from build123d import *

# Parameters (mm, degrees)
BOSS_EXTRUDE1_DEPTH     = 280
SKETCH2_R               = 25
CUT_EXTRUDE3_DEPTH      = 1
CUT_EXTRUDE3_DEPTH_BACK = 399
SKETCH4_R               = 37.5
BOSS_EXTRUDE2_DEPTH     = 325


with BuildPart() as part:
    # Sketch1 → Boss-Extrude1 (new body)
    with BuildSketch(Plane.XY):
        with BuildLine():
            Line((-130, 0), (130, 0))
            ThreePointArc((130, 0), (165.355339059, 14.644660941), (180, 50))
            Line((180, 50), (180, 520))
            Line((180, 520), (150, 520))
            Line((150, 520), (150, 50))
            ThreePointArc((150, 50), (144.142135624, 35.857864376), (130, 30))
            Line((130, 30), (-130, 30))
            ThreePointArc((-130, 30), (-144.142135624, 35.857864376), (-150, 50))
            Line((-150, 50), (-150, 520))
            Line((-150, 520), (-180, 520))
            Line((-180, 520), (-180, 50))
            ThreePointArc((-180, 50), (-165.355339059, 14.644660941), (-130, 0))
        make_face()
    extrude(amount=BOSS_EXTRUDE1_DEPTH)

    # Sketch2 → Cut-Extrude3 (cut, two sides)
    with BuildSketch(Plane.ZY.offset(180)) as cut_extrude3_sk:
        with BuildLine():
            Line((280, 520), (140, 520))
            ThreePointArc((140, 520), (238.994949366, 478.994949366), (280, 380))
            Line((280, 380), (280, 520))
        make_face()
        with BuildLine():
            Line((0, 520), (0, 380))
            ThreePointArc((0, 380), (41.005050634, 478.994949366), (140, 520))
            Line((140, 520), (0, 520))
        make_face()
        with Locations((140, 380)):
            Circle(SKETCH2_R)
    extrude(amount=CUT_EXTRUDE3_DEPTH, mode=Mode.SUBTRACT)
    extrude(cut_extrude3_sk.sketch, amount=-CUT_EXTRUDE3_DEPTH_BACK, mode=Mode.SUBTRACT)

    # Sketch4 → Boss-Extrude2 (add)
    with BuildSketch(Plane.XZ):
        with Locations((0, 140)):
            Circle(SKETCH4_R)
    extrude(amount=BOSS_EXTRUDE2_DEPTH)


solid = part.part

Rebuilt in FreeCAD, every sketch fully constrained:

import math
import FreeCAD as App
import Part
import Sketcher

V = App.Vector
Q = App.Units.Quantity

doc = App.newDocument("Part")
params = doc.addObject("Spreadsheet::Sheet", "Params")
for row, (alias, value) in enumerate([
    ("sketch1_radius", "50 mm"),
    ("sketch1_radius2", "20 mm"),
    ("sketch1_width", "260 mm"),
    ("sketch1_height", "470 mm"),
    ("pad1_length", "280 mm"),
    ("sketch2_diameter", "50 mm"),
    ("sketch2_radius", "140 mm"),
    ("sketch3_diameter", "75 mm"),
    ("pad2_length", "325 mm"),
], start=1):
    params.set(f"A{row}", alias)
    params.set(f"B{row}", "=" + value)
    params.setAlias(f"B{row}", alias)

body = doc.addObject("PartDesign::Body", "Body")

# Sketch on XY plane
sketch1 = body.newObject("Sketcher::SketchObject", "Sketch")
sketch1.AttachmentSupport = (doc.getObject("XY_Plane"), [""])
sketch1.MapMode = "FlatFace"
sketch1.addGeometry([
    Part.LineSegment(V(-130, 0, 0), V(130, 0, 0)),  # 0
    Part.ArcOfCircle(Part.Circle(V(130, 50, 0), V(0, 0, 1), 50), math.radians(-90), math.radians(0)),  # 1
    Part.LineSegment(V(180, 50, 0), V(180, 520, 0)),  # 2
    Part.LineSegment(V(180, 520, 0), V(150, 520, 0)),  # 3
    Part.LineSegment(V(150, 520, 0), V(150, 50, 0)),  # 4
    Part.ArcOfCircle(Part.Circle(V(130, 50, 0), V(0, 0, 1), 20), math.radians(-90), math.radians(0)),  # 5
    Part.LineSegment(V(130, 30, 0), V(-130, 30, 0)),  # 6
    Part.ArcOfCircle(Part.Circle(V(-130, 50, 0), V(0, 0, 1), 20), math.radians(180), math.radians(270)),  # 7
    Part.LineSegment(V(-150, 50, 0), V(-150, 520, 0)),  # 8
    Part.LineSegment(V(-150, 520, 0), V(-180, 520, 0)),  # 9
    Part.LineSegment(V(-180, 520, 0), V(-180, 50, 0)),  # 10
    Part.ArcOfCircle(Part.Circle(V(-130, 50, 0), V(0, 0, 1), 50), math.radians(-180), math.radians(-90)),  # 11
], False)
sketch1.addConstraint([
    Sketcher.Constraint("Tangent", 0, 2, 1, 1),
    Sketcher.Constraint("Tangent", 1, 2, 2, 1),
    Sketcher.Constraint("Coincident", 2, 2, 3, 1),
    Sketcher.Constraint("Coincident", 3, 2, 4, 1),
    Sketcher.Constraint("Tangent", 4, 2, 5, 2),
    Sketcher.Constraint("Tangent", 5, 1, 6, 1),
    Sketcher.Constraint("Tangent", 6, 2, 7, 2),
    Sketcher.Constraint("Tangent", 7, 1, 8, 1),
    Sketcher.Constraint("Coincident", 8, 2, 9, 1),
    Sketcher.Constraint("Coincident", 9, 2, 10, 1),
    Sketcher.Constraint("Tangent", 10, 2, 11, 1),
    Sketcher.Constraint("Tangent", 11, 2, 0, 1),
    Sketcher.Constraint("Horizontal", 0),
    Sketcher.Constraint("Vertical", 2),
    Sketcher.Constraint("Horizontal", 3),
    Sketcher.Constraint("Vertical", 4),
    Sketcher.Constraint("Horizontal", 6),
    Sketcher.Constraint("Vertical", 8),
    Sketcher.Constraint("Horizontal", 9),
    Sketcher.Constraint("Vertical", 10),
    Sketcher.Constraint("Coincident", 5, 3, 1, 3),
    Sketcher.Constraint("Coincident", 11, 3, 7, 3),
    Sketcher.Constraint("Equal", 5, 7),
    Sketcher.Constraint("Symmetric", 0, 2, 11, 2, -1, 1),
    Sketcher.Constraint("Horizontal", 3, 2, 8, 2),
    Sketcher.Constraint("Radius", 1, Q("50 mm")),
    Sketcher.Constraint("Radius", 5, Q("20 mm")),
    Sketcher.Constraint("DistanceX", 0, 1, 0, 2, Q("260 mm")),
    Sketcher.Constraint("DistanceY", 2, 1, 2, 2, Q("470 mm")),
])
sketch1.setExpression("Constraints[25]", "Params.sketch1_radius")
sketch1.setExpression("Constraints[26]", "Params.sketch1_radius2")
sketch1.setExpression("Constraints[27]", "Params.sketch1_width")
sketch1.setExpression("Constraints[28]", "Params.sketch1_height")
pad1 = body.newObject("PartDesign::Pad", "Pad")
pad1.Profile = sketch1
pad1.setExpression("Length", "Params.pad1_length")

# Sketch on YZ plane
sketch2 = body.newObject("Sketcher::SketchObject", "Sketch001")
sketch2.AttachmentSupport = (doc.getObject("YZ_Plane"), [""])
sketch2.MapMode = "FlatFace"
sketch2.AttachmentOffset = App.Placement(V(0, 0, -180), App.Rotation())
sketch2.addGeometry([
    Part.LineSegment(V(520, 280, 0), V(520, 140, 0)),  # 0
    Part.ArcOfCircle(Part.Circle(V(380, 140, 0), V(0, 0, 1), 140), math.radians(0), math.radians(90)),  # 1
    Part.LineSegment(V(380, 280, 0), V(520, 280, 0)),  # 2
    Part.LineSegment(V(520, 0, 0), V(380, 0, 0)),  # 3
    Part.ArcOfCircle(Part.Circle(V(380, 140, 0), V(0, 0, 1), 140), math.radians(-90), math.radians(0)),  # 4
    Part.LineSegment(V(520, 140, 0), V(520, 0, 0)),  # 5
    Part.Circle(V(380, 140, 0), V(0, 0, 1), 25),  # 6
], False)
sketch2.addConstraint([
    Sketcher.Constraint("Tangent", 0, 2, 1, 1),
    Sketcher.Constraint("Tangent", 1, 2, 2, 1),
    Sketcher.Constraint("Coincident", 2, 2, 0, 1),
    Sketcher.Constraint("Tangent", 3, 2, 4, 1),
    Sketcher.Constraint("Tangent", 4, 2, 5, 1),
    Sketcher.Constraint("Coincident", 5, 2, 3, 1),
    Sketcher.Constraint("Vertical", 0),
    Sketcher.Constraint("Horizontal", 2),
    Sketcher.Constraint("Horizontal", 3),
    Sketcher.Constraint("Vertical", 5),
    Sketcher.Constraint("Coincident", 4, 3, 1, 3),
    Sketcher.Constraint("Coincident", 6, 3, 1, 3),
    Sketcher.Constraint("Equal", 1, 4),
    Sketcher.Constraint("PointOnObject", 3, 2, -1),
    Sketcher.Constraint("Diameter", 6, Q("50 mm")),
    Sketcher.Constraint("Radius", 1, Q("140 mm")),
    Sketcher.Constraint("DistanceX", -1, 1, 1, 3, Q("380 mm")),
])
sketch2.setExpression("Constraints[14]", "Params.sketch2_diameter")
sketch2.setExpression("Constraints[15]", "Params.sketch2_radius")
pocket1 = body.newObject("PartDesign::Pocket", "Pocket")
pocket1.Profile = sketch2
pocket1.Type = "ThroughAll"
pocket1.Midplane = True

# Sketch on XZ plane
sketch3 = body.newObject("Sketcher::SketchObject", "Sketch002")
sketch3.AttachmentSupport = (doc.getObject("XZ_Plane"), [""])
sketch3.MapMode = "FlatFace"
sketch3.addGeometry(Part.Circle(V(0, 140, 0), V(0, 0, 1), 38), False)
sketch3.addConstraint([
    Sketcher.Constraint("PointOnObject", 0, 3, -2),
    Sketcher.Constraint("Diameter", 0, Q("75 mm")),
    Sketcher.Constraint("DistanceY", -1, 1, 0, 3, Q("140 mm")),
])
sketch3.setExpression("Constraints[1]", "Params.sketch3_diameter")
pad2 = body.newObject("PartDesign::Pad", "Pad001")
pad2.Profile = sketch3
pad2.setExpression("Length", "Params.pad2_length")

doc.recompute()
